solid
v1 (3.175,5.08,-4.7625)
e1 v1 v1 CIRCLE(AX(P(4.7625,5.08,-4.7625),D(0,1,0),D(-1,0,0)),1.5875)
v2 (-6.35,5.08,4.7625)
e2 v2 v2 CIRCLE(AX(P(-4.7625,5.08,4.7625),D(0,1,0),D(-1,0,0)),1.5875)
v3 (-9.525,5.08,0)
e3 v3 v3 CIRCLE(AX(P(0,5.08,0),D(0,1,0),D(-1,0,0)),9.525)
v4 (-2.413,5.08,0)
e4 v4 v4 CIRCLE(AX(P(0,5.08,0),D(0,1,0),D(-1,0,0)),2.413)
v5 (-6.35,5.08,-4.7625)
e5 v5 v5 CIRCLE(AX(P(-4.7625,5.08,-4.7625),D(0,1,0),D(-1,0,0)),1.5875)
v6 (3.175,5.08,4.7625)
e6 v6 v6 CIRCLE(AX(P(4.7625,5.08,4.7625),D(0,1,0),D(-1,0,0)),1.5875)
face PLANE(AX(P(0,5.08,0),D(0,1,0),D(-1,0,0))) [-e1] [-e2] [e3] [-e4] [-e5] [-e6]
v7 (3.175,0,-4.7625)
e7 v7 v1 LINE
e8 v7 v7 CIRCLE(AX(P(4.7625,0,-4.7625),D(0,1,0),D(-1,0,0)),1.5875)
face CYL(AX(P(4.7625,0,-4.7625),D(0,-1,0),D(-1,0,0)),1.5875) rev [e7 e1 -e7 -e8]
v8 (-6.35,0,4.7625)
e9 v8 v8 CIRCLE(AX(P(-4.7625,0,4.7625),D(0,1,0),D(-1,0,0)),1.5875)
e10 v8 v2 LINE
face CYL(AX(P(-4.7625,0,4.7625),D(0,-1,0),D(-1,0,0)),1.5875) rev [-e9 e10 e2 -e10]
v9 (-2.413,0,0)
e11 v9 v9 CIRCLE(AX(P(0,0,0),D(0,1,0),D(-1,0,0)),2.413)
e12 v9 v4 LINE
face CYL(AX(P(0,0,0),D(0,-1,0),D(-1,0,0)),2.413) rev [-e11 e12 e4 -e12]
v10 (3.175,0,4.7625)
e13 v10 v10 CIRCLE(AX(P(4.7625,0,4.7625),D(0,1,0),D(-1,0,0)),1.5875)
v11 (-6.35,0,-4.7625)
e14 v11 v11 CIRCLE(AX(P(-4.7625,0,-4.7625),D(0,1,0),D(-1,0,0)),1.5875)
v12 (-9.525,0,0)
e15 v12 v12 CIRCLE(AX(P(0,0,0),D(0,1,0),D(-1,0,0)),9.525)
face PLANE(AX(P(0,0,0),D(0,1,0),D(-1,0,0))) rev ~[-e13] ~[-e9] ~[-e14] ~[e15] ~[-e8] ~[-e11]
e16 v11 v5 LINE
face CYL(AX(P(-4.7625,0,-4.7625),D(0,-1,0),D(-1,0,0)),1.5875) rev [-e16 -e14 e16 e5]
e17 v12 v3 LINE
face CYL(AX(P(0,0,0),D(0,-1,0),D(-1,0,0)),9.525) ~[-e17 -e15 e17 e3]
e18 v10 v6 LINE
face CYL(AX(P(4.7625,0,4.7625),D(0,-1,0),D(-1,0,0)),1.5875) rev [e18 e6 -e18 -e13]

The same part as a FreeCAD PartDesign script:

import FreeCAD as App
import Part
import Sketcher
Q = App.Units.Quantity

doc = App.newDocument("Part")
params = doc.addObject("Spreadsheet::Sheet", "Params")
for row, (alias, value) in enumerate([
    ("sketch1_diameter", "0.75 in"),
    ("sketch1_diameter2", "0.19 in"),
    ("sketch1_diameter3", "0.125 in"),
    ("pad1_length", "0.2 in"),
], start=1):
    params.set(f"A{row}", alias)
    params.set(f"B{row}", "=" + value)
    params.setAlias(f"B{row}", alias)

body = doc.addObject("PartDesign::Body", "Body")

sketch1 = body.newObject("Sketcher::SketchObject", "Sketch")
sketch1.AttachmentSupport = (doc.getObject("XZ_Plane"), [""])
sketch1.MapMode = "FlatFace"
sketch1.addGeometry([
    Part.Circle(App.Vector(0, 0, 0), App.Vector(0, 0, 1), 9.5),
    Part.Circle(App.Vector(4.8, -4.8, 0), App.Vector(0, 0, 1), 1.6),
    Part.Circle(App.Vector(-4.8, -4.8, 0), App.Vector(0, 0, 1), 1.6),
    Part.Circle(App.Vector(4.8, 4.8, 0), App.Vector(0, 0, 1), 1.6),
    Part.Circle(App.Vector(0, 0, 0), App.Vector(0, 0, 1), 2.4),
    Part.Circle(App.Vector(-4.8, 4.8, 0), App.Vector(0, 0, 1), 1.6),
], False)
sketch1.addConstraint([
    Sketcher.Constraint("Coincident", 0, 3, -1, 1),
    Sketcher.Constraint("Coincident", 4, 3, -1, 1),
    Sketcher.Constraint("Equal", 1, 2),
    Sketcher.Constraint("Equal", 2, 3),
    Sketcher.Constraint("Equal", 3, 5),
    Sketcher.Constraint("Symmetric", 2, 3, 3, 3, -1, 1),
    Sketcher.Constraint("Symmetric", 1, 3, 5, 3, -1, 1),
    Sketcher.Constraint("Symmetric", 1, 3, 2, 3, -2),
    Sketcher.Constraint("Diameter", 0, Q("0.75 in")),
    Sketcher.Constraint("Diameter", 4, Q("0.19 in")),
    Sketcher.Constraint("Diameter", 1, Q("0.125 in")),
    Sketcher.Constraint("DistanceX", -1, 1, 1, 3, Q("0.1875 in")),
    Sketcher.Constraint("DistanceY", 1, 3, -1, 1, Q("0.1875 in")),
])
sketch1.setExpression("Constraints[8]", "Params.sketch1_diameter")
sketch1.setExpression("Constraints[9]", "Params.sketch1_diameter2")
sketch1.setExpression("Constraints[10]", "Params.sketch1_diameter3")
pad1 = body.newObject("PartDesign::Pad", "Pad")
pad1.Profile = sketch1
pad1.setExpression("Length", "Params.pad1_length")
pad1.Reversed = True

doc.recompute()
